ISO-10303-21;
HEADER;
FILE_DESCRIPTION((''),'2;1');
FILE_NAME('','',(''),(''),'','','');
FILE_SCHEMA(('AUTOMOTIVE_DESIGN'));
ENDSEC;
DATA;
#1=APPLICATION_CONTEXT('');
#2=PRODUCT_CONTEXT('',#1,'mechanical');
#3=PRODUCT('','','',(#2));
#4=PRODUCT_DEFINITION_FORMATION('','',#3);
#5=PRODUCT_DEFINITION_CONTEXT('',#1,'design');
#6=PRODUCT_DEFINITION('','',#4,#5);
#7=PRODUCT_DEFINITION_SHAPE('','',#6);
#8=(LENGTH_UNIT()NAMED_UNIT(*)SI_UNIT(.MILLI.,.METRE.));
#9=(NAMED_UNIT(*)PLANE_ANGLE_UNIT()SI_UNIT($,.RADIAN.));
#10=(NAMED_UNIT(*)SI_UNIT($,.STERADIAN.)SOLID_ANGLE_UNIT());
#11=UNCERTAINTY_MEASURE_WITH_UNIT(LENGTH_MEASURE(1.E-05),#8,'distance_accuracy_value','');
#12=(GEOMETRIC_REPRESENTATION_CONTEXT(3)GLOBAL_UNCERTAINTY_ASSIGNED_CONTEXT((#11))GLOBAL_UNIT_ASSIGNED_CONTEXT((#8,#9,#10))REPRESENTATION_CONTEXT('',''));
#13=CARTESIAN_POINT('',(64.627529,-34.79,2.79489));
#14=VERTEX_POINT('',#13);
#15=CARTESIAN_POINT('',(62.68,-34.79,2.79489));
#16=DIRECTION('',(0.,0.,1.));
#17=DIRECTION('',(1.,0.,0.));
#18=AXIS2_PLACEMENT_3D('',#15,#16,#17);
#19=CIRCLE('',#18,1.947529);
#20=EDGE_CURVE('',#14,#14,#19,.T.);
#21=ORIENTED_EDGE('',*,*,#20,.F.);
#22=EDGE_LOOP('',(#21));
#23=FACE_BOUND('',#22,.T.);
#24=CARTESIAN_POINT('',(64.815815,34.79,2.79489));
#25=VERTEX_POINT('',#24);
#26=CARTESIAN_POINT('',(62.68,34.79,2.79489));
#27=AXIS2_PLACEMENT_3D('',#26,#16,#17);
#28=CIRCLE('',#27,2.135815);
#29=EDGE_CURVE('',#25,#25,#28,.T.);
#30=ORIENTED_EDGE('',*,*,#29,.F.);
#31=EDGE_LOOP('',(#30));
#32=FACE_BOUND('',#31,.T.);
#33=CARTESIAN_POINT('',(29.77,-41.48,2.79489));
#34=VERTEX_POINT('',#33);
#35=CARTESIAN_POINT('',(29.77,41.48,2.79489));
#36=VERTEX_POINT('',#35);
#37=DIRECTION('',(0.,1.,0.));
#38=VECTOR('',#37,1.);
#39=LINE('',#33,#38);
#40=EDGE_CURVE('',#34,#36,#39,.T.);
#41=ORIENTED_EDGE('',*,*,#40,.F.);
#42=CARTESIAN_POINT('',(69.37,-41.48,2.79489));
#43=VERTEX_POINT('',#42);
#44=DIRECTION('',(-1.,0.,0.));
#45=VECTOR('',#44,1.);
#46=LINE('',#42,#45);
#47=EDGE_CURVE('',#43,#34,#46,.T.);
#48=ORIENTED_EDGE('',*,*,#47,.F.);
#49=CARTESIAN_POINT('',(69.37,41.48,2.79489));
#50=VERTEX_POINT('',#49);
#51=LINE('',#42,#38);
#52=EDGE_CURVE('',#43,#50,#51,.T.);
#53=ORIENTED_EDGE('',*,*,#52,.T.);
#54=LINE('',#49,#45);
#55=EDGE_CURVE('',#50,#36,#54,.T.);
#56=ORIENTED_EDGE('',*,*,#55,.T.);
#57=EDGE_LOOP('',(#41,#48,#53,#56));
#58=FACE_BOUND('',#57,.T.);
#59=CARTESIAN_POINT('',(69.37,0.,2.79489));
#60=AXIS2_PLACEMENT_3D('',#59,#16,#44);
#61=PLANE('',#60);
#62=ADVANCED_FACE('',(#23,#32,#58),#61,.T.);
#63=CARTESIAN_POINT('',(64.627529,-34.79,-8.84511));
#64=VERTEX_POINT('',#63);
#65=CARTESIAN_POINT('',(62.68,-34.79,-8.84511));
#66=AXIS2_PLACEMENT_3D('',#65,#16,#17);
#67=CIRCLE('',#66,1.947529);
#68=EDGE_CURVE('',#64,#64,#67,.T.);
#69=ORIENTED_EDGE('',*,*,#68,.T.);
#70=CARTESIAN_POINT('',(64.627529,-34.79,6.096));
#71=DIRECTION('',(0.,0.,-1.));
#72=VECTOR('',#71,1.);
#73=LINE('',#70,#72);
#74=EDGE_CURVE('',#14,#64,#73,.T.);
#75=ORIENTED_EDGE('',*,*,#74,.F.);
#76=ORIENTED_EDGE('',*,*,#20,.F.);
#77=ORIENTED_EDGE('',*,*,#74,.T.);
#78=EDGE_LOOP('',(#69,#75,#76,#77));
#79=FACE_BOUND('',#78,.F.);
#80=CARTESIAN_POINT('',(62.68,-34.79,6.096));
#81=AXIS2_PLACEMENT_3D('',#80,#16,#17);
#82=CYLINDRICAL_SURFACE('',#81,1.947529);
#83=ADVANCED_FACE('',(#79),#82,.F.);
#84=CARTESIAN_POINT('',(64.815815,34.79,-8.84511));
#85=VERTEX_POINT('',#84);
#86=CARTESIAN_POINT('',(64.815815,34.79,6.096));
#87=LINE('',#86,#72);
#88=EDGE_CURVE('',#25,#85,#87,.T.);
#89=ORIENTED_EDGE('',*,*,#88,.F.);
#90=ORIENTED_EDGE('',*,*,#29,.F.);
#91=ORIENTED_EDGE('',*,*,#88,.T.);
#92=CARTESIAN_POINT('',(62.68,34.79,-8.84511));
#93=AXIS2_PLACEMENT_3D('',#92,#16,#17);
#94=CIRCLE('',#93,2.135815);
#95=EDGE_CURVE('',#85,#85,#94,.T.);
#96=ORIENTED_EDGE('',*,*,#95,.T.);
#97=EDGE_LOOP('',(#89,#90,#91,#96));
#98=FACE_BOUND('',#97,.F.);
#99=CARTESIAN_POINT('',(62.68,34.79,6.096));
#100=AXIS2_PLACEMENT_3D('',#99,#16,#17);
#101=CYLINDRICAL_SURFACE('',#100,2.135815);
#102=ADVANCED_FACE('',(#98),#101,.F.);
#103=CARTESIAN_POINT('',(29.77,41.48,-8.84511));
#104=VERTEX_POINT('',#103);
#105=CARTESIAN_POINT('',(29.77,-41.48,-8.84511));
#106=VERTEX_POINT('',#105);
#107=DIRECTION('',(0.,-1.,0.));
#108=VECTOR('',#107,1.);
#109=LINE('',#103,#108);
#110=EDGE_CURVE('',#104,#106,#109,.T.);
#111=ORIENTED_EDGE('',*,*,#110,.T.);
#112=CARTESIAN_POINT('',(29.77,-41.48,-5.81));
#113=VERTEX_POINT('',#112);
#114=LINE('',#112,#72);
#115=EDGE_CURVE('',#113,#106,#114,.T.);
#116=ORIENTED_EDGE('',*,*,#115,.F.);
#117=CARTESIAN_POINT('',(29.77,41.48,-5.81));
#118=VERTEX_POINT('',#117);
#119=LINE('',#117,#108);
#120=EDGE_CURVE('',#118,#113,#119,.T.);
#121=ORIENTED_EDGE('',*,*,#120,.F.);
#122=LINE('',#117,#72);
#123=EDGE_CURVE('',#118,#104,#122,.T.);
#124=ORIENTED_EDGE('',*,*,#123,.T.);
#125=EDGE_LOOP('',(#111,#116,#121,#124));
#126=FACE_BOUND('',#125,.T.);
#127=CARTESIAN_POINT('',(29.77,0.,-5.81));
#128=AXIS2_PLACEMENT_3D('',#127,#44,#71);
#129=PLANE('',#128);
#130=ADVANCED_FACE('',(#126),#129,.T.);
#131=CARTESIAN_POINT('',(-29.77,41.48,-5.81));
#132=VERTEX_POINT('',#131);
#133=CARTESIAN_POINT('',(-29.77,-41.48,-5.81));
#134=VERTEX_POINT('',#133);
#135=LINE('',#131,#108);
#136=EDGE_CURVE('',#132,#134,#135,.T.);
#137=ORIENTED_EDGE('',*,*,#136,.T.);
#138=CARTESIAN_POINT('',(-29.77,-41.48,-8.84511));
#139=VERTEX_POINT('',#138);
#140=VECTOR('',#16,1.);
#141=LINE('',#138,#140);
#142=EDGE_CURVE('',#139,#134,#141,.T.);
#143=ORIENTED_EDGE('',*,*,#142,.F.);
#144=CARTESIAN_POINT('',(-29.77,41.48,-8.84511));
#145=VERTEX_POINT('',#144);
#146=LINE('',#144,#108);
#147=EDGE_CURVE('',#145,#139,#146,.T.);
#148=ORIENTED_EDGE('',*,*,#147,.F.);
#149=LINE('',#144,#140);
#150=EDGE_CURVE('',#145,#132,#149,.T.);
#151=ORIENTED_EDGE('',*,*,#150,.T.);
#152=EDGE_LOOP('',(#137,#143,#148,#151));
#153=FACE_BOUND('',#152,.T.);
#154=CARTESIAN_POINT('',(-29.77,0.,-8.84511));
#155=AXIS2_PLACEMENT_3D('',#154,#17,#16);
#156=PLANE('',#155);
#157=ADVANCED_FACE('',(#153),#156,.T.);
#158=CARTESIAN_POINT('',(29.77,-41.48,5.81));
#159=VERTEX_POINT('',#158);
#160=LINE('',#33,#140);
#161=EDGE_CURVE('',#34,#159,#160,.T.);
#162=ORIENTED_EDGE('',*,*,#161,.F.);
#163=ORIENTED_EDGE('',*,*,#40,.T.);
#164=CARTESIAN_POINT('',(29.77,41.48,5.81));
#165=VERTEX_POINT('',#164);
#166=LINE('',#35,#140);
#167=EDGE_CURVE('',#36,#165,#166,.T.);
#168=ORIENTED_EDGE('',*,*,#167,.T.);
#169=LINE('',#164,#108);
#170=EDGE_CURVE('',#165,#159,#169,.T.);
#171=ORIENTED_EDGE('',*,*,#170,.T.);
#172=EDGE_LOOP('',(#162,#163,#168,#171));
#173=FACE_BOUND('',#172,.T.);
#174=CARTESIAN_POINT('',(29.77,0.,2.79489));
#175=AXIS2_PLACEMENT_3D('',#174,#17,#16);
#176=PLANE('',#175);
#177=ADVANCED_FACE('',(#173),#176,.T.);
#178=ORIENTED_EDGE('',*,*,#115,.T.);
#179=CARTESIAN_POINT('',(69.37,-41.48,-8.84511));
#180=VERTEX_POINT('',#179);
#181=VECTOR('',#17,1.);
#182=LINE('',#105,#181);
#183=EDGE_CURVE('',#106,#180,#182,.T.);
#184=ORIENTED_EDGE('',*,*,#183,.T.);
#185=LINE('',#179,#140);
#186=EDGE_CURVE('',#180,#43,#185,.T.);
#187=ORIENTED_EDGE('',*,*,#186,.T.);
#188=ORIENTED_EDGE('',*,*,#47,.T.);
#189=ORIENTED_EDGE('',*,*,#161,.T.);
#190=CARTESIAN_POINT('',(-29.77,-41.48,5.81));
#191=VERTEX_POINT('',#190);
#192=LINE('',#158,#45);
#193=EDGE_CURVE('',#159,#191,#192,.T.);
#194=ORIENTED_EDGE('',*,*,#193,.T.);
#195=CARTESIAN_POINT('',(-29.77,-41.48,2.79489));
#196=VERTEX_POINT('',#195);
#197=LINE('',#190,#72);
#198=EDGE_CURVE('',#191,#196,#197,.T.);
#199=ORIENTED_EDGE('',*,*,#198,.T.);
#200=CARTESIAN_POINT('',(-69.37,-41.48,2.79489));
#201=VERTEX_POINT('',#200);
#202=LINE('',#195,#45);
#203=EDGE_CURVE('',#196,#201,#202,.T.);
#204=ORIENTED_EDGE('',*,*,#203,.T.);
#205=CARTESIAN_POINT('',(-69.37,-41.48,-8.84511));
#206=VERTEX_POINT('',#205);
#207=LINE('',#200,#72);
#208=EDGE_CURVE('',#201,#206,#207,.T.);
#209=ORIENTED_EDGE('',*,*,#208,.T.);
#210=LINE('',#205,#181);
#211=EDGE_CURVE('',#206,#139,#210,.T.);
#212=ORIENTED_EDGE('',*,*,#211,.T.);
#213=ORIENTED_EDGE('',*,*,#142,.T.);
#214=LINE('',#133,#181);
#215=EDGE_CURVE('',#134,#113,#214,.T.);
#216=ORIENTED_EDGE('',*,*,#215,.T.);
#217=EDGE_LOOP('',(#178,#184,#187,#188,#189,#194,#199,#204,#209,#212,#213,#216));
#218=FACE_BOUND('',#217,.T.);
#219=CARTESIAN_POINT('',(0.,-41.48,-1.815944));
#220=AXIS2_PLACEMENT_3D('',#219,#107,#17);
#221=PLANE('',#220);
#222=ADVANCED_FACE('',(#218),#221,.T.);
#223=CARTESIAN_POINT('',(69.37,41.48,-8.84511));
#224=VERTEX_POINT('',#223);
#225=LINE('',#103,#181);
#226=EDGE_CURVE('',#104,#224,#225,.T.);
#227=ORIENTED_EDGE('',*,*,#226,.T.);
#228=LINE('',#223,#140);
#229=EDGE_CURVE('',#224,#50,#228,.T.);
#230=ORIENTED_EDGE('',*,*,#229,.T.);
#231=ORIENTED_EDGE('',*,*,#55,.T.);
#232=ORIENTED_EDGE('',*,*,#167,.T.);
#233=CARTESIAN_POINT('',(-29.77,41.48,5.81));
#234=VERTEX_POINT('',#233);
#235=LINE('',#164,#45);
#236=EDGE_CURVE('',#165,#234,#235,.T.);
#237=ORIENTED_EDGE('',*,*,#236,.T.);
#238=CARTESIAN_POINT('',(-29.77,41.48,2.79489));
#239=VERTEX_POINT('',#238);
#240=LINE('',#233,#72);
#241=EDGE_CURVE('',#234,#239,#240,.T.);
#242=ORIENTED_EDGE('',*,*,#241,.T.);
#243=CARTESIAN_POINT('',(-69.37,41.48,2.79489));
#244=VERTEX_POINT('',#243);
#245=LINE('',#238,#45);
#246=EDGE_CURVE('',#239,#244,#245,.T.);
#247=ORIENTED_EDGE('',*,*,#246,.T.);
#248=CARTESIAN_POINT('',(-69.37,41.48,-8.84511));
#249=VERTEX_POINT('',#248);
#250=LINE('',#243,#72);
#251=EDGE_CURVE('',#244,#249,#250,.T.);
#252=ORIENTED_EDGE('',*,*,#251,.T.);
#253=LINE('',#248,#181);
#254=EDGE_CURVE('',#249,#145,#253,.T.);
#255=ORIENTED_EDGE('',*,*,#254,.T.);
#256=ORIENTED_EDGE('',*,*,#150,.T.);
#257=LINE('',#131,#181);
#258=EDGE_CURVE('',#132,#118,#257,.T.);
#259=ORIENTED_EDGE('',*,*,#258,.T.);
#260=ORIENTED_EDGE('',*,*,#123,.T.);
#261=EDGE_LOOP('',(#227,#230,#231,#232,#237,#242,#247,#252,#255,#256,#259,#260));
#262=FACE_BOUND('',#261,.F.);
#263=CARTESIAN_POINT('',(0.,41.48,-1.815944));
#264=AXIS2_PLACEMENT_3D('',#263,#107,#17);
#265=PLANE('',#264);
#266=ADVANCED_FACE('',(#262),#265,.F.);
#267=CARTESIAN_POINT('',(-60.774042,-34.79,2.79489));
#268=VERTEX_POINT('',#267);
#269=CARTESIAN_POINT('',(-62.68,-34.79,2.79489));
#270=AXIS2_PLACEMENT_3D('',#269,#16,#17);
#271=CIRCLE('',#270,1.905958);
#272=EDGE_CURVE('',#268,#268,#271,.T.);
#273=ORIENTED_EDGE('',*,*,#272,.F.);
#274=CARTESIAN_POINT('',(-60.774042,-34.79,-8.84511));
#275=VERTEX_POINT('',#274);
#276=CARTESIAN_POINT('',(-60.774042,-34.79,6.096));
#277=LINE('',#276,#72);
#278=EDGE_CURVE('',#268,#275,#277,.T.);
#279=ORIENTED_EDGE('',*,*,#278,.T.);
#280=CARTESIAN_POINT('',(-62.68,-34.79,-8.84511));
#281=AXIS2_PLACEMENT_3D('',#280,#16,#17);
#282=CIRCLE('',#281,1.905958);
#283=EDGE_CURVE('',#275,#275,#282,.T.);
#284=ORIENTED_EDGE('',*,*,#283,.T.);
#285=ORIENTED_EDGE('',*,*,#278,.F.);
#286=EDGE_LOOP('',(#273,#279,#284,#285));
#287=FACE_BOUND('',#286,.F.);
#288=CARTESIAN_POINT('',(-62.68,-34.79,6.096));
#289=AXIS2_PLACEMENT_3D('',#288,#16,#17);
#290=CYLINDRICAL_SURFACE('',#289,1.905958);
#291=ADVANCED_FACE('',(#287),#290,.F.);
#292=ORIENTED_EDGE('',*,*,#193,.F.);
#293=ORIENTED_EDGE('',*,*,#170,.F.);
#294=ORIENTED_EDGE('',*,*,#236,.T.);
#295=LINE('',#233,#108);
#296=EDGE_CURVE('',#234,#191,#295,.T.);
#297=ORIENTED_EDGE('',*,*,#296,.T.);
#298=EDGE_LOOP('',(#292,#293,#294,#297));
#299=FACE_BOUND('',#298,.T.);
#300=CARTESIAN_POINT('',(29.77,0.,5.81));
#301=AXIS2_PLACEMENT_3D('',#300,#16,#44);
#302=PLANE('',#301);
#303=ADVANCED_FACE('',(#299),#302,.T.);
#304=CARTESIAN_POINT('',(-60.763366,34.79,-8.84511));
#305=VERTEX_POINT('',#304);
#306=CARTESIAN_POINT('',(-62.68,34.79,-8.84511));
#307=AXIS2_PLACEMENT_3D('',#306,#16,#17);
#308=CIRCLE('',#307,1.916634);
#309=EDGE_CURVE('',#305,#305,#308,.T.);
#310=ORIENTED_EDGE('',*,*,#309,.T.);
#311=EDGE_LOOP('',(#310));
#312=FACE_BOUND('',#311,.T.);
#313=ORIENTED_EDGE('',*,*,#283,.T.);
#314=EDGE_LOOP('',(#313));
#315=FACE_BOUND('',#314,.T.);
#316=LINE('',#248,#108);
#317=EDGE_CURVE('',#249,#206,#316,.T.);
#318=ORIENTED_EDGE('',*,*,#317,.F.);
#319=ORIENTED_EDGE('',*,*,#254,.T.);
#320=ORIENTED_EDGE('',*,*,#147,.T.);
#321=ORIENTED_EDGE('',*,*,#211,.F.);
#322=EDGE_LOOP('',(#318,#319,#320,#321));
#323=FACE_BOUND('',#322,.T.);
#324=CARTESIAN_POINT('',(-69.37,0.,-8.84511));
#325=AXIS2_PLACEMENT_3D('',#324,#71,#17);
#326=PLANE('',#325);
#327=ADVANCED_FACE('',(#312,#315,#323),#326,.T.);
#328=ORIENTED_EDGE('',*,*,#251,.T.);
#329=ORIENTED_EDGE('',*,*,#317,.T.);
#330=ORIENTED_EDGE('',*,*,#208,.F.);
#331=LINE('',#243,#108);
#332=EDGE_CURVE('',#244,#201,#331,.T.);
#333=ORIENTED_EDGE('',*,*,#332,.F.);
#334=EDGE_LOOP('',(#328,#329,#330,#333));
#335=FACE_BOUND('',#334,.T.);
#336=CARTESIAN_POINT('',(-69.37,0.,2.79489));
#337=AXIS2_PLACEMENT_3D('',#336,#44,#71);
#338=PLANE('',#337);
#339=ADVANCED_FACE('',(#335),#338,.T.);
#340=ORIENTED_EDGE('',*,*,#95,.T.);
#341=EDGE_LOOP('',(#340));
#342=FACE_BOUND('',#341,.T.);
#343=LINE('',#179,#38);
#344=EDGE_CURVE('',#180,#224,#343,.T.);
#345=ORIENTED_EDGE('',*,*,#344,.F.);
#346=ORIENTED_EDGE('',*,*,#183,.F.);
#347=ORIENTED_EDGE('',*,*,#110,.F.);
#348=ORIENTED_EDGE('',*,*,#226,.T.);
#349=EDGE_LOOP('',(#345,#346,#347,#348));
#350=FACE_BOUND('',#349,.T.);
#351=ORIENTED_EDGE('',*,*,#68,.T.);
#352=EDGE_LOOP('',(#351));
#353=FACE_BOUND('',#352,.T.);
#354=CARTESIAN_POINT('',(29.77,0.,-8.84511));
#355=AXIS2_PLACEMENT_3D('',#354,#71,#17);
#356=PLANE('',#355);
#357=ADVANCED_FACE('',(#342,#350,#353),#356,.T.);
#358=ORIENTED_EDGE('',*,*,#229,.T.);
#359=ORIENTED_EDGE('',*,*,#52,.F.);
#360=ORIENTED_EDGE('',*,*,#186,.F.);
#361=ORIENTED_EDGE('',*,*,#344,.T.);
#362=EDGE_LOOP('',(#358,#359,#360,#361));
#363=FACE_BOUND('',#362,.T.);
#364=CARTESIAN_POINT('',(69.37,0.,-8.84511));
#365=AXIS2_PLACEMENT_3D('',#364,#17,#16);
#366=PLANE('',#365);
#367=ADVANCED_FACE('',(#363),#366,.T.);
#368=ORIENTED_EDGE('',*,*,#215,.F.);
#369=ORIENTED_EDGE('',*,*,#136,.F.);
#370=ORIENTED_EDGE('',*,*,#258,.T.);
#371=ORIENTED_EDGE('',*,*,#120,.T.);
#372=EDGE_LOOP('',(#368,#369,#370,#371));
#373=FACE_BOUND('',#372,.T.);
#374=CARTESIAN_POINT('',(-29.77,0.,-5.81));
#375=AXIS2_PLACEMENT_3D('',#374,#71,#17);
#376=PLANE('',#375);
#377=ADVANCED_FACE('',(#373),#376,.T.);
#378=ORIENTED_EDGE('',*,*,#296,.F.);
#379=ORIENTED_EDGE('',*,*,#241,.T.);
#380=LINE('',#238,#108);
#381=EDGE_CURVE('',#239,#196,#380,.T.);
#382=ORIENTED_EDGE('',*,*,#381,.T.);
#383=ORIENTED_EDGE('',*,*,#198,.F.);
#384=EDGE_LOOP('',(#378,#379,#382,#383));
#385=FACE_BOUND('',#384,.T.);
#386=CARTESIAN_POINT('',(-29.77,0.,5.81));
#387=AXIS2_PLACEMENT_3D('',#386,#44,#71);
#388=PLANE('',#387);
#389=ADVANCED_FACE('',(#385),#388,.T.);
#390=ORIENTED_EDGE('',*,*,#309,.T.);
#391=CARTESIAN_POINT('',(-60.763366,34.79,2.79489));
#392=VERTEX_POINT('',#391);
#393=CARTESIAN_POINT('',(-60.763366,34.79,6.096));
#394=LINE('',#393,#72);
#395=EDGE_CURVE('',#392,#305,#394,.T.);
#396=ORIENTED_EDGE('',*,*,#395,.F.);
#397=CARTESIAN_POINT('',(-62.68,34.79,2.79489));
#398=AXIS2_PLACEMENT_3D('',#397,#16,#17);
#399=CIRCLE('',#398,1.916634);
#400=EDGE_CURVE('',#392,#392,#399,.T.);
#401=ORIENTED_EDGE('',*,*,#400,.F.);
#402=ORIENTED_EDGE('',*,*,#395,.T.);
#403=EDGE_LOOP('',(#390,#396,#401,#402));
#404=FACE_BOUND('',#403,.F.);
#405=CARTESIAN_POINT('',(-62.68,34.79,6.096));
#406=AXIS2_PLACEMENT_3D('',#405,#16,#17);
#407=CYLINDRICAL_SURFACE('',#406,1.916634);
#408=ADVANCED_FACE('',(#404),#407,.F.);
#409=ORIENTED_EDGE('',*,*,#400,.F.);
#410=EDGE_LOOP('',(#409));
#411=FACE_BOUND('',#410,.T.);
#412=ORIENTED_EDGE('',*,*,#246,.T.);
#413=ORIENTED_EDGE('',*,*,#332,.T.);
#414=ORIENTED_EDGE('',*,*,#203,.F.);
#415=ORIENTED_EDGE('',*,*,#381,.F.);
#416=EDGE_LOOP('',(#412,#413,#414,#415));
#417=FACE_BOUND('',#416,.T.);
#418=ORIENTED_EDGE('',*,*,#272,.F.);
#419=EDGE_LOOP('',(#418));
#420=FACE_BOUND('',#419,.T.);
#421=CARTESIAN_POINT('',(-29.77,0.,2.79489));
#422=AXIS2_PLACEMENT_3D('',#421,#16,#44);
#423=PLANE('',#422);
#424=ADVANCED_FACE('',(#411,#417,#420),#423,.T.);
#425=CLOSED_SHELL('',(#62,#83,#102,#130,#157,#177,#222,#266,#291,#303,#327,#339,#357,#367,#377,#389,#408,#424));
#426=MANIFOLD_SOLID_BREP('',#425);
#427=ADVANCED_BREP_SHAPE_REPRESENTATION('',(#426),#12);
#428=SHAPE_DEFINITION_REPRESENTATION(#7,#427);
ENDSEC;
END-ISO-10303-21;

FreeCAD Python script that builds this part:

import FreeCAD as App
import Part
import Sketcher

V = App.Vector
Q = App.Units.Quantity


def add_polygon(sketch, points):
    """Adds a closed chain of lines whose ends are joined by coincident constraints."""
    first, n = sketch.GeometryCount, len(points)
    for a, b in zip(points, points[1:] + points[:1]):
        sketch.addGeometry(Part.LineSegment(App.Vector(*a, 0), App.Vector(*b, 0)), False)
    for i in range(n):
        sketch.addConstraint(Sketcher.Constraint("Coincident", first + i, 2, first + (i + 1) % n, 1))

doc = App.newDocument("Part")
body = doc.addObject("PartDesign::Body", "Body")

# Sketch on XZ plane
sketch1 = doc.addObject("Sketcher::SketchObject", "Sketch")
body.addObject(sketch1)
sketch1.AttachmentSupport = (doc.XZ_Plane, [""])
sketch1.MapMode = "FlatFace"
add_polygon(sketch1, [(29.8, 2.8), (29.8, 5.8), (-29.8, 5.8), (-29.8, 2.8), (-69.4, 2.8), (-69.4, -8.8), (-29.8, -8.8), (-29.8, -5.8), (29.8, -5.8), (29.8, -8.8), (69.4, -8.8), (69.4, 2.8)])  # lines 0-11
sketch1.addConstraint([
    Sketcher.Constraint("Vertical", 0),
    Sketcher.Constraint("Horizontal", 1),
    Sketcher.Constraint("Vertical", 2),
    Sketcher.Constraint("Horizontal", 3),
    Sketcher.Constraint("Vertical", 4),
    Sketcher.Constraint("Horizontal", 5),
    Sketcher.Constraint("Vertical", 6),
    Sketcher.Constraint("Horizontal", 7),
    Sketcher.Constraint("Vertical", 8),
    Sketcher.Constraint("Horizontal", 9),
    Sketcher.Constraint("Vertical", 10),
    Sketcher.Constraint("Horizontal", 11),
    Sketcher.Constraint("Symmetric", 0, 2, 6, 2, -1, 1),
    Sketcher.Constraint("Symmetric", 5, 2, 8, 2, -2),
    Sketcher.Constraint("Symmetric", 3, 2, 10, 2, -2),
    Sketcher.Constraint("Vertical", 2, 2, 5, 2),
    Sketcher.Constraint("DistanceX", 3, 2, 3, 1, Q("39.6 mm")),
    Sketcher.Constraint("DistanceX", 1, 2, 1, 1, Q("59.54 mm")),
    Sketcher.Constraint("DistanceY", 4, 2, 4, 1, Q("11.64 mm")),
    Sketcher.Constraint("DistanceY", -1, 1, 0, 2, Q("5.81 mm")),
    Sketcher.Constraint("DistanceY", 0, 1, 0, 2, Q("3.01511 mm")),
])
pad1 = doc.addObject("PartDesign::Pad", "Pad")
body.addObject(pad1)
pad1.Profile = sketch1
pad1.Length = 82.96
pad1.Midplane = True

# Sketch on XY plane
sketch2 = doc.addObject("Sketcher::SketchObject", "Sketch001")
body.addObject(sketch2)
sketch2.AttachmentSupport = (doc.XY_Plane, [""])
sketch2.MapMode = "FlatFace"
sketch2.AttachmentOffset = App.Placement(V(0, 0, 6.096), App.Rotation())
sketch2.addGeometry([
    Part.Circle(V(-62.7, -34.8, 0), V(0, 0, 1), 1.9),
    Part.Circle(V(-62.7, 34.8, 0), V(0, 0, 1), 1.9),
    Part.Circle(V(62.7, 34.8, 0), V(0, 0, 1), 2.1),
    Part.Circle(V(62.7, -34.8, 0), V(0, 0, 1), 1.9),
], False)
sketch2.addConstraint([
    Sketcher.Constraint("Symmetric", 0, 3, 2, 3, -1, 1),
    Sketcher.Constraint("Symmetric", 1, 3, 3, 3, -1, 1),
    Sketcher.Constraint("Symmetric", 1, 3, 2, 3, -2),
    Sketcher.Constraint("Diameter", 2, Q("4.27163 mm")),
    Sketcher.Constraint("Diameter", 3, Q("3.895058 mm")),
    Sketcher.Constraint("DistanceX", 0, 3, -1, 1, Q("62.68 mm")),
    Sketcher.Constraint("DistanceY", 0, 3, -1, 1, Q("34.79 mm")),
    Sketcher.Constraint("Diameter", 0, Q("3.811916 mm")),
    Sketcher.Constraint("Diameter", 1, Q("3.833268 mm")),
])
pocket1 = doc.addObject("PartDesign::Pocket", "Pocket")
body.addObject(pocket1)
pocket1.Profile = sketch2
pocket1.Type = "ThroughAll"

doc.recompute()
